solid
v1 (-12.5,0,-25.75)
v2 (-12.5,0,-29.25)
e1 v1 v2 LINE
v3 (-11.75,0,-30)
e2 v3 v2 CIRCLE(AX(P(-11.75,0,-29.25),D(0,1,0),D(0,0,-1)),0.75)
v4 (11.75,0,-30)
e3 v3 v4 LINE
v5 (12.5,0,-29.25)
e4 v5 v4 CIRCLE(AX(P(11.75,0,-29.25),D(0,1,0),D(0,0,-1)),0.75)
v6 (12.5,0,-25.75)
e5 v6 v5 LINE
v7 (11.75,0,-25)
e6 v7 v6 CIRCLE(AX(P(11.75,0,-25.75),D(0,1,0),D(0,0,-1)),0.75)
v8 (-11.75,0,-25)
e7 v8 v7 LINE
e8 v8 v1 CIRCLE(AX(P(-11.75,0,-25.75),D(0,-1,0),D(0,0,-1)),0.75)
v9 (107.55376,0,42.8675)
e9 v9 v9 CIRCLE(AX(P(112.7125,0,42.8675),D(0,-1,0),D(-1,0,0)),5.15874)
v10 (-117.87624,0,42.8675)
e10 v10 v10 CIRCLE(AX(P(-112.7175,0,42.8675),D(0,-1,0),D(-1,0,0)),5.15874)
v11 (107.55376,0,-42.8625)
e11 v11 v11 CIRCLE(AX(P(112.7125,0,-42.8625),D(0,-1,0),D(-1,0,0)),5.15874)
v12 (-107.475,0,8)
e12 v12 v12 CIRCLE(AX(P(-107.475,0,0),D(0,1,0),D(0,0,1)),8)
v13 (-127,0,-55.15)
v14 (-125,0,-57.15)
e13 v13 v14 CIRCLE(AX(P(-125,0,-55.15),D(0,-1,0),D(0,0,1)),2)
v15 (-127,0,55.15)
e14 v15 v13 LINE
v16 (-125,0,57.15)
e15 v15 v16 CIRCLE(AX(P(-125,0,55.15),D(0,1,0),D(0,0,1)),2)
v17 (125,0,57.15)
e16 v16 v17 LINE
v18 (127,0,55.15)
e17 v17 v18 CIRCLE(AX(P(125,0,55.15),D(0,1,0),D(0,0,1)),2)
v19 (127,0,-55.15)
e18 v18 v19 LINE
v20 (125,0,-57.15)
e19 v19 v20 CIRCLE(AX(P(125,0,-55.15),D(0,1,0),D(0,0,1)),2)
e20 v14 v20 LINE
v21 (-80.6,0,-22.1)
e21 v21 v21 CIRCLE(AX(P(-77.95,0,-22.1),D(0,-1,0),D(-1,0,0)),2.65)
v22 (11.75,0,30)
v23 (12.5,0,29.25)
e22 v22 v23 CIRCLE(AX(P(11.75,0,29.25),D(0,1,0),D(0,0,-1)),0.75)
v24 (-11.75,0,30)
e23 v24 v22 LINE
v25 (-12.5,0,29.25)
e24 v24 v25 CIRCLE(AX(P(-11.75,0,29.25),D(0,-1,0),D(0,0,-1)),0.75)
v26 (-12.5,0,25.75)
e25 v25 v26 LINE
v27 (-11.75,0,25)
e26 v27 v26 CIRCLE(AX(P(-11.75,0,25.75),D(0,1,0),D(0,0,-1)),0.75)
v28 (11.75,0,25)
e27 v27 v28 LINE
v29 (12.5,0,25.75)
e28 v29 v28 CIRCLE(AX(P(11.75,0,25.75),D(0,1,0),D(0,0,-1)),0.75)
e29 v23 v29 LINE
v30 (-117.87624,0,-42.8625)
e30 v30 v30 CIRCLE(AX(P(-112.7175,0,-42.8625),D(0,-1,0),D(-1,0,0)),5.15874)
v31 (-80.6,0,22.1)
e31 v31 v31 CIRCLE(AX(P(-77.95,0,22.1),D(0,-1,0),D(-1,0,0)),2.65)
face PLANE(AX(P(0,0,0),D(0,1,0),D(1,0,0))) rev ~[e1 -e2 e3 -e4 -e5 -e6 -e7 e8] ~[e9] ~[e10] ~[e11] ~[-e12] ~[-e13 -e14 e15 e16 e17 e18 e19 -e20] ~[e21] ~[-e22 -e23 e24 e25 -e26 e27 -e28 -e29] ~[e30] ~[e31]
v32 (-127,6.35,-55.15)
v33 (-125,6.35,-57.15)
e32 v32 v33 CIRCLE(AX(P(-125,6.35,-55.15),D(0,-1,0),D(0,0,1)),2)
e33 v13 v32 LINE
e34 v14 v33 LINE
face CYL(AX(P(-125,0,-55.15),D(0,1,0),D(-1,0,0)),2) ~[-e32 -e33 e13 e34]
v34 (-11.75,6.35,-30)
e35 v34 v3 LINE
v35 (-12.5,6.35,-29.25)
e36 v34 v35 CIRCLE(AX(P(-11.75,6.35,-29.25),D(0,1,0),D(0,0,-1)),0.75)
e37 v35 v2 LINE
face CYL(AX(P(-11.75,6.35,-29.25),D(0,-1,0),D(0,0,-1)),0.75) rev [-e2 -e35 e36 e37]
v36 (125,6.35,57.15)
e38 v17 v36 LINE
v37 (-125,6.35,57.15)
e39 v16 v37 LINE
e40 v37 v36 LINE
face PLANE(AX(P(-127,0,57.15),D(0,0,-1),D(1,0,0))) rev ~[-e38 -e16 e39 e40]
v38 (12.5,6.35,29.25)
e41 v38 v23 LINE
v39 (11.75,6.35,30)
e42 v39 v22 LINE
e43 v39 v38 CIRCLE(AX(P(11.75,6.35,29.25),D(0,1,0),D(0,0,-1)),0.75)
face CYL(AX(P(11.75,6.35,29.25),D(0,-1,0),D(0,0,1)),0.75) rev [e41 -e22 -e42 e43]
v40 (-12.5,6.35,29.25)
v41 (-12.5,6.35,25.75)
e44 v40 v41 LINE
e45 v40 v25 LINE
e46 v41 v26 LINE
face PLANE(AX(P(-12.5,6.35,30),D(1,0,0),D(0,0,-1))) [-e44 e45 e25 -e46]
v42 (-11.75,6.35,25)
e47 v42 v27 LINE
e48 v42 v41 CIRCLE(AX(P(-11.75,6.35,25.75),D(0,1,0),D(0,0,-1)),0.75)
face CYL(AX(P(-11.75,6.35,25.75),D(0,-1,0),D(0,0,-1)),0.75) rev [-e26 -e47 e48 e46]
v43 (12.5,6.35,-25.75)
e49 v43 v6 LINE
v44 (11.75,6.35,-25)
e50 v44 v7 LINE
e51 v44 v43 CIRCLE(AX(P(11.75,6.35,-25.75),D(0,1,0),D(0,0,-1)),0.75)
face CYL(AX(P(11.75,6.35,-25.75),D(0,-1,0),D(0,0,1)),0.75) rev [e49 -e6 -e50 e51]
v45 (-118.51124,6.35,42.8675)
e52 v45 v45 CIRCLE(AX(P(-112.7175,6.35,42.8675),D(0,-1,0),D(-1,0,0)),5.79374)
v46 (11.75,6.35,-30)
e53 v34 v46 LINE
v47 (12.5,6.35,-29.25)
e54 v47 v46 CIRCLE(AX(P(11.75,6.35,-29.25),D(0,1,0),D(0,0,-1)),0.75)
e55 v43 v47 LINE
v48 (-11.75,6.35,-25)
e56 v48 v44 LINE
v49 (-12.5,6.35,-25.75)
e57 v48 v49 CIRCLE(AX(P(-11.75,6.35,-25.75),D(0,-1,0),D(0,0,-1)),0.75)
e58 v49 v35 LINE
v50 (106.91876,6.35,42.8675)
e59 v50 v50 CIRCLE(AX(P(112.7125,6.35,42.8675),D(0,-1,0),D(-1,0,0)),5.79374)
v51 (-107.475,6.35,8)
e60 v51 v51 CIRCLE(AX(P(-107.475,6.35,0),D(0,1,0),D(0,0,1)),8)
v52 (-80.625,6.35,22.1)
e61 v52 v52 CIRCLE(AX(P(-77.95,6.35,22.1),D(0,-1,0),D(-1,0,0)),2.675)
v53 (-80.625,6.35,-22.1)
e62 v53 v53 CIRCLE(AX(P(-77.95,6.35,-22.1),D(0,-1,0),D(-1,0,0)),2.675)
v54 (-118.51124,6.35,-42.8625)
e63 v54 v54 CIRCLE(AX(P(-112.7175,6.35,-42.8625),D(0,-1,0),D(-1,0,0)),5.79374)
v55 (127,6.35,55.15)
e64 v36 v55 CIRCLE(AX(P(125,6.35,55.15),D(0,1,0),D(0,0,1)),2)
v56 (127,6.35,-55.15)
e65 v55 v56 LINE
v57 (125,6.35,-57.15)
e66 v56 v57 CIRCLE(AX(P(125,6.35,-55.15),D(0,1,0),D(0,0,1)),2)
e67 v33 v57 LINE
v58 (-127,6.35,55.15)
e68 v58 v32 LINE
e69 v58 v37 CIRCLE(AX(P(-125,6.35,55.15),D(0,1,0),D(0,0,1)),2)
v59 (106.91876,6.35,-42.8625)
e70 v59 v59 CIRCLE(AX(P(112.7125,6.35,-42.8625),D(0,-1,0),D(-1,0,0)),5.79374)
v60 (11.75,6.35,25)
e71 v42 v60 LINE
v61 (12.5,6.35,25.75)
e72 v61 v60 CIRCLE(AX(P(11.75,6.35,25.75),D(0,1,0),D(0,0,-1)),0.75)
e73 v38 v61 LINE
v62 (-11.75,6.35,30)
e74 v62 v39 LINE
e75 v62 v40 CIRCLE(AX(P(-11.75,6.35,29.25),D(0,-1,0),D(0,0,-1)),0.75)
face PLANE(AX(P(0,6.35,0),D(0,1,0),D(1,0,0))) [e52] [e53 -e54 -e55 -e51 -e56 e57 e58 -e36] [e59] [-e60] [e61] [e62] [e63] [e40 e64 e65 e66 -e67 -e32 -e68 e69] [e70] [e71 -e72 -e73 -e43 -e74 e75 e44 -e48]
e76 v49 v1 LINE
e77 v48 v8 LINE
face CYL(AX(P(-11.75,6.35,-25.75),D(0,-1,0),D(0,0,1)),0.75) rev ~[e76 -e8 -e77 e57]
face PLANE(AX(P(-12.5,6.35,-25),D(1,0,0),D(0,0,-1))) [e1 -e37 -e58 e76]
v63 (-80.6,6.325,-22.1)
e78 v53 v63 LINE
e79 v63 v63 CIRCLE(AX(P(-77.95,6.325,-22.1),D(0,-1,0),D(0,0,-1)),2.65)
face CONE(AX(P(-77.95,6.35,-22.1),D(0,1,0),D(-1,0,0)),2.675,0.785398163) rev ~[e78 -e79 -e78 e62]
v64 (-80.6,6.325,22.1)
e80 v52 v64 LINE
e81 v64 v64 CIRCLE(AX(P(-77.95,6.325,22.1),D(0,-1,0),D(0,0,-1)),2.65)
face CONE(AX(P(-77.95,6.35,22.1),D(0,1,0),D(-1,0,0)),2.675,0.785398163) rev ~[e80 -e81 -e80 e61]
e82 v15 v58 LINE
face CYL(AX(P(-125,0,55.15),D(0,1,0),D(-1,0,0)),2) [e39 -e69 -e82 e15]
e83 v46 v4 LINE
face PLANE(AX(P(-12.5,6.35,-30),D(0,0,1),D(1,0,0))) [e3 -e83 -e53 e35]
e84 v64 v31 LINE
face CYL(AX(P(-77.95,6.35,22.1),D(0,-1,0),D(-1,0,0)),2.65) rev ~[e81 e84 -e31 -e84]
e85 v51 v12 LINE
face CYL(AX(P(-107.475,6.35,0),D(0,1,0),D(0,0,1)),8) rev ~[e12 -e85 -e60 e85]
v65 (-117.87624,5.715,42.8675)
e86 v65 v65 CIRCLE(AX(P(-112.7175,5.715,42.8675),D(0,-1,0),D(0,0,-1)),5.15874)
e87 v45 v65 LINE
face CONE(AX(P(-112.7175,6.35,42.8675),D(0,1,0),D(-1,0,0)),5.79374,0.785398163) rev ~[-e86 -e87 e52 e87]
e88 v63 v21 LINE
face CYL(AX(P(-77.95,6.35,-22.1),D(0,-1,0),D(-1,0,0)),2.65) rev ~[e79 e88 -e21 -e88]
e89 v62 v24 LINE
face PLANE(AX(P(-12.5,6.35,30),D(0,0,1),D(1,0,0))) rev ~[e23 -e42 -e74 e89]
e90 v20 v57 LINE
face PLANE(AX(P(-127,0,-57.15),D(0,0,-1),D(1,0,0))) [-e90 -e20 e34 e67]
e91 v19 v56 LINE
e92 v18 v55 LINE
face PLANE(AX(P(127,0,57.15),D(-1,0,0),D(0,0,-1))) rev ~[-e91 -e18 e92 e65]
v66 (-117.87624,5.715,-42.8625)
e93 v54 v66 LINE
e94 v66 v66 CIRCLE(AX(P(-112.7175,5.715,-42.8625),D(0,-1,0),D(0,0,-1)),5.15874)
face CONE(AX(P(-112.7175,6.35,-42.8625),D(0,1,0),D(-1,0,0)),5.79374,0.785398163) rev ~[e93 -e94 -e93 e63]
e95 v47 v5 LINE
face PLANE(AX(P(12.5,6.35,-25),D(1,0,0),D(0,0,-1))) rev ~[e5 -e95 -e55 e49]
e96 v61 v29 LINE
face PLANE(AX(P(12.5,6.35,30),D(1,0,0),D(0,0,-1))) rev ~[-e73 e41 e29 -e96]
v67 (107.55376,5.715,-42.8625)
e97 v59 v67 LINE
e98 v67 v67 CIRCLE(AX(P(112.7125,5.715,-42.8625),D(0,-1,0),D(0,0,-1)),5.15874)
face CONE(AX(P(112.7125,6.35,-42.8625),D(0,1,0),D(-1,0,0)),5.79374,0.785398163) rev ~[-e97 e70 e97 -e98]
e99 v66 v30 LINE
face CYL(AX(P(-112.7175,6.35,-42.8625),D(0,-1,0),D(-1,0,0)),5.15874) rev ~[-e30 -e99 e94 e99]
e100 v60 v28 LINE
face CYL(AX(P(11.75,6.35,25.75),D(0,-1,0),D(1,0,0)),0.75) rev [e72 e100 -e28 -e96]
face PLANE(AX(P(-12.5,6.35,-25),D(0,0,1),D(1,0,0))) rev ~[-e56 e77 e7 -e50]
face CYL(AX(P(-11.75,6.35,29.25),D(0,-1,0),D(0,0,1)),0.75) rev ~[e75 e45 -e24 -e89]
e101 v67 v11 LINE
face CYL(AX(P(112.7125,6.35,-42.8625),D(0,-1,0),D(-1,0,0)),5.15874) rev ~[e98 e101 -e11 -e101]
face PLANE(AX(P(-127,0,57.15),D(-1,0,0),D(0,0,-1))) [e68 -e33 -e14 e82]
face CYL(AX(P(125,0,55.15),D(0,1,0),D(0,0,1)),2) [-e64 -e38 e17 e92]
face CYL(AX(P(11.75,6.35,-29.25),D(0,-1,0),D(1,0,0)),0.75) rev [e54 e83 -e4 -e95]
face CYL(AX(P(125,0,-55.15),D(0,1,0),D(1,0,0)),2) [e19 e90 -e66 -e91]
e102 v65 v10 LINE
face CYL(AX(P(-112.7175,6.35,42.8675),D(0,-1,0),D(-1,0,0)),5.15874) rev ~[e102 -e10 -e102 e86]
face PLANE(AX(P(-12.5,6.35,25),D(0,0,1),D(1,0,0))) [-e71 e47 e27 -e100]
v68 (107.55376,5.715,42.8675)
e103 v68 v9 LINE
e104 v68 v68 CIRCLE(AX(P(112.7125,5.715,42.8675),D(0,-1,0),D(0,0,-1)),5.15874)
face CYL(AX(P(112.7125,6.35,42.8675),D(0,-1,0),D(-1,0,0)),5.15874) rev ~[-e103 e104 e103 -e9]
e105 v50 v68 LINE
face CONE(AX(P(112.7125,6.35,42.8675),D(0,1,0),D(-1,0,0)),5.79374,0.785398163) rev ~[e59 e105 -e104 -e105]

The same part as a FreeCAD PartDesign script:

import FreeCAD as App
import Part
import Sketcher

V = App.Vector


def edges_at(feature, points):
    """Names of the edges that pass closest to the given points."""
    edges = feature.Shape.Edges
    near = lambda p: min(range(len(edges)), key=lambda i: edges[i].distToShape(Part.Vertex(*p))[0])
    return sorted({f"Edge{near(p) + 1}" for p in points})


def add_polygon(sketch, points):
    """Adds a closed chain of lines whose ends are joined by coincident constraints."""
    first, n = sketch.GeometryCount, len(points)
    for a, b in zip(points, points[1:] + points[:1]):
        sketch.addGeometry(Part.LineSegment(App.Vector(*a, 0), App.Vector(*b, 0)), False)
    for i in range(n):
        sketch.addConstraint(Sketcher.Constraint("Coincident", first + i, 2, first + (i + 1) % n, 1))

doc = App.newDocument("Part")
body = doc.addObject("PartDesign::Body", "Body")

sketch1 = body.newObject("Sketcher::SketchObject", "Sketch")
sketch1.AttachmentSupport = (doc.getObject("XZ_Plane"), [""])
sketch1.MapMode = "FlatFace"
add_polygon(sketch1, [(-127, -57), (-127, 57), (127, 57), (127, -57)])
sketch1.addConstraint(Sketcher.Constraint("Vertical", 0))
sketch1.addConstraint(Sketcher.Constraint("Horizontal", 1))
sketch1.addConstraint(Sketcher.Constraint("Vertical", 2))
sketch1.addConstraint(Sketcher.Constraint("Horizontal", 3))
sketch1.addConstraint(Sketcher.Constraint("Symmetric", 0, 2, 2, 2, -1, 1))
sketch1.addConstraint(Sketcher.Constraint("DistanceX", 1, 1, 1, 2, 254.0))
sketch1.addConstraint(Sketcher.Constraint("DistanceY", 0, 1, 0, 2, 114.3))
pad1 = body.newObject("PartDesign::Pad", "Pad")
pad1.Profile = sketch1
pad1.Length = 6.35
pad1.Reversed = True
doc.recompute()

fillet = body.newObject("PartDesign::Fillet", "Fillet")
fillet.Base = (pad1, edges_at(pad1, [
    (127, 3.175, 57.15),
    (-127, 3.175, 57.15),
    (-127, 3.175, -57.15),
    (127, 3.175, -57.15),
]))
fillet.Radius = 2

sketch2 = body.newObject("Sketcher::SketchObject", "Sketch001")
sketch2.AttachmentSupport = (doc.getObject("XZ_Plane"), [""])
sketch2.MapMode = "FlatFace"
sketch2.AttachmentOffset = App.Placement(V(0, 0, -6.35), App.Rotation())
add_polygon(sketch2, [(-12, -30), (-12, -25), (12, -25), (12, -30)])
add_polygon(sketch2, [(-12, 25), (-12, 30), (12, 30), (12, 25)])
sketch2.addConstraint(Sketcher.Constraint("Vertical", 0))
sketch2.addConstraint(Sketcher.Constraint("Horizontal", 1))
sketch2.addConstraint(Sketcher.Constraint("Vertical", 2))
sketch2.addConstraint(Sketcher.Constraint("Horizontal", 3))
sketch2.addConstraint(Sketcher.Constraint("Vertical", 4))
sketch2.addConstraint(Sketcher.Constraint("Horizontal", 5))
sketch2.addConstraint(Sketcher.Constraint("Vertical", 6))
sketch2.addConstraint(Sketcher.Constraint("Horizontal", 7))
sketch2.addConstraint(Sketcher.Constraint("Symmetric", 2, 2, 4, 2, -1, 1))
sketch2.addConstraint(Sketcher.Constraint("Symmetric", 0, 2, 6, 2, -1, 1))
sketch2.addConstraint(Sketcher.Constraint("Vertical", 3, 2, 4, 2))
sketch2.addConstraint(Sketcher.Constraint("DistanceX", 1, 1, 1, 2, 25.0))
sketch2.addConstraint(Sketcher.Constraint("DistanceY", 0, 1, 0, 2, 5.0))
sketch2.addConstraint(Sketcher.Constraint("DistanceY", 0, 2, -1, 1, 25.0))
pocket1 = body.newObject("PartDesign::Pocket", "Pocket")
pocket1.Profile = sketch2
pocket1.Type = "ThroughAll"
pocket1.Reversed = True
doc.recompute()

fillet2 = body.newObject("PartDesign::Fillet", "Fillet001")
fillet2.Base = (pocket1, edges_at(pocket1, [
    (12.5, 3.175, 25),
    (12.5, 3.175, 30),
    (-12.5, 3.175, 30),
    (-12.5, 3.175, 25),
    (12.5, 3.175, -25),
    (-12.5, 3.175, -25),
    (-12.5, 3.175, -30),
    (12.5, 3.175, -30),
]))
fillet2.Radius = 0.75

sketch3 = body.newObject("Sketcher::SketchObject", "Sketch002")
sketch3.AttachmentSupport = (doc.getObject("XZ_Plane"), [""])
sketch3.MapMode = "FlatFace"
sketch3.AttachmentOffset = App.Placement(V(0, 0, -6.35), App.Rotation())
sketch3.addGeometry(Part.Circle(V(113, -43, 0), V(0, 0, 1), 5), False)
sketch3.addGeometry(Part.Circle(V(113, 43, 0), V(0, 0, 1), 5), False)
sketch3.addGeometry(Part.Circle(V(-113, -43, 0), V(0, 0, 1), 5), False)
sketch3.addGeometry(Part.Circle(V(-113, 43, 0), V(0, 0, 1), 5), False)
sketch3.addConstraint(Sketcher.Constraint("Equal", 0, 1))
sketch3.addConstraint(Sketcher.Constraint("Equal", 1, 2))
sketch3.addConstraint(Sketcher.Constraint("Equal", 2, 3))
sketch3.addConstraint(Sketcher.Constraint("Horizontal", 0, 3, 2, 3))
sketch3.addConstraint(Sketcher.Constraint("Horizontal", 1, 3, 3, 3))
sketch3.addConstraint(Sketcher.Constraint("Vertical", 0, 3, 1, 3))
sketch3.addConstraint(Sketcher.Constraint("Vertical", 2, 3, 3, 3))
sketch3.addConstraint(Sketcher.Constraint("Diameter", 0, 10.31748))
sketch3.addConstraint(Sketcher.Constraint("DistanceY", 0, 3, 1, 3, 85.73))
sketch3.addConstraint(Sketcher.Constraint("DistanceX", 2, 3, 0, 3, 225.43))
sketch3.addConstraint(Sketcher.Constraint("DistanceX", -1, 1, 0, 3, 112.7125))
sketch3.addConstraint(Sketcher.Constraint("DistanceY", 0, 3, -1, 1, 42.8625))
doc.recompute()
hole = body.newObject("PartDesign::Hole", "Hole")
hole.Profile = sketch3
hole.ThreadType = "None"
hole.Diameter = 10.31748
hole.DepthType = "ThroughAll"
hole.HoleCutType = "Countersink"
hole.HoleCutDiameter = 11.58748
hole.HoleCutCountersinkAngle = 90
hole.Reversed = True

sketch4 = body.newObject("Sketcher::SketchObject", "Sketch003")
sketch4.AttachmentSupport = (doc.getObject("XZ_Plane"), [""])
sketch4.MapMode = "FlatFace"
sketch4.AttachmentOffset = App.Placement(V(0, 0, -6.35), App.Rotation())
sketch4.addGeometry(Part.Circle(V(-107, 0, 0), V(0, 0, 1), 8), False)
sketch4.addConstraint(Sketcher.Constraint("PointOnObject", 0, 3, -1))
sketch4.addConstraint(Sketcher.Constraint("Diameter", 0, 16.0))
sketch4.addConstraint(Sketcher.Constraint("DistanceX", 0, 3, -1, 1, 107.475))
pocket2 = body.newObject("PartDesign::Pocket", "Pocket001")
pocket2.Profile = sketch4
pocket2.Type = "ThroughAll"
pocket2.Reversed = True

sketch5 = body.newObject("Sketcher::SketchObject", "Sketch004")
sketch5.AttachmentSupport = (doc.getObject("XZ_Plane"), [""])
sketch5.MapMode = "FlatFace"
sketch5.AttachmentOffset = App.Placement(V(0, 0, -6.35), App.Rotation())
sketch5.addGeometry(Part.Circle(V(-78, -22.1, 0), V(0, 0, 1), 2.6), False)
sketch5.addGeometry(Part.Circle(V(-78, 22.1, 0), V(0, 0, 1), 2.6), False)
sketch5.addConstraint(Sketcher.Constraint("Equal", 0, 1))
sketch5.addConstraint(Sketcher.Constraint("Symmetric", 0, 3, 1, 3, -1))
sketch5.addConstraint(Sketcher.Constraint("Diameter", 0, 5.3))
sketch5.addConstraint(Sketcher.Constraint("DistanceY", 0, 3, -1, 1, 22.1))
sketch5.addConstraint(Sketcher.Constraint("DistanceX", 0, 3, -1, 1, 77.95))
doc.recompute()
hole2 = body.newObject("PartDesign::Hole", "Hole001")
hole2.Profile = sketch5
hole2.ThreadType = "None"
hole2.Diameter = 5.3
hole2.DepthType = "ThroughAll"
hole2.HoleCutType = "Countersink"
hole2.HoleCutDiameter = 5.35
hole2.HoleCutCountersinkAngle = 90
hole2.Reversed = True

doc.recompute()
